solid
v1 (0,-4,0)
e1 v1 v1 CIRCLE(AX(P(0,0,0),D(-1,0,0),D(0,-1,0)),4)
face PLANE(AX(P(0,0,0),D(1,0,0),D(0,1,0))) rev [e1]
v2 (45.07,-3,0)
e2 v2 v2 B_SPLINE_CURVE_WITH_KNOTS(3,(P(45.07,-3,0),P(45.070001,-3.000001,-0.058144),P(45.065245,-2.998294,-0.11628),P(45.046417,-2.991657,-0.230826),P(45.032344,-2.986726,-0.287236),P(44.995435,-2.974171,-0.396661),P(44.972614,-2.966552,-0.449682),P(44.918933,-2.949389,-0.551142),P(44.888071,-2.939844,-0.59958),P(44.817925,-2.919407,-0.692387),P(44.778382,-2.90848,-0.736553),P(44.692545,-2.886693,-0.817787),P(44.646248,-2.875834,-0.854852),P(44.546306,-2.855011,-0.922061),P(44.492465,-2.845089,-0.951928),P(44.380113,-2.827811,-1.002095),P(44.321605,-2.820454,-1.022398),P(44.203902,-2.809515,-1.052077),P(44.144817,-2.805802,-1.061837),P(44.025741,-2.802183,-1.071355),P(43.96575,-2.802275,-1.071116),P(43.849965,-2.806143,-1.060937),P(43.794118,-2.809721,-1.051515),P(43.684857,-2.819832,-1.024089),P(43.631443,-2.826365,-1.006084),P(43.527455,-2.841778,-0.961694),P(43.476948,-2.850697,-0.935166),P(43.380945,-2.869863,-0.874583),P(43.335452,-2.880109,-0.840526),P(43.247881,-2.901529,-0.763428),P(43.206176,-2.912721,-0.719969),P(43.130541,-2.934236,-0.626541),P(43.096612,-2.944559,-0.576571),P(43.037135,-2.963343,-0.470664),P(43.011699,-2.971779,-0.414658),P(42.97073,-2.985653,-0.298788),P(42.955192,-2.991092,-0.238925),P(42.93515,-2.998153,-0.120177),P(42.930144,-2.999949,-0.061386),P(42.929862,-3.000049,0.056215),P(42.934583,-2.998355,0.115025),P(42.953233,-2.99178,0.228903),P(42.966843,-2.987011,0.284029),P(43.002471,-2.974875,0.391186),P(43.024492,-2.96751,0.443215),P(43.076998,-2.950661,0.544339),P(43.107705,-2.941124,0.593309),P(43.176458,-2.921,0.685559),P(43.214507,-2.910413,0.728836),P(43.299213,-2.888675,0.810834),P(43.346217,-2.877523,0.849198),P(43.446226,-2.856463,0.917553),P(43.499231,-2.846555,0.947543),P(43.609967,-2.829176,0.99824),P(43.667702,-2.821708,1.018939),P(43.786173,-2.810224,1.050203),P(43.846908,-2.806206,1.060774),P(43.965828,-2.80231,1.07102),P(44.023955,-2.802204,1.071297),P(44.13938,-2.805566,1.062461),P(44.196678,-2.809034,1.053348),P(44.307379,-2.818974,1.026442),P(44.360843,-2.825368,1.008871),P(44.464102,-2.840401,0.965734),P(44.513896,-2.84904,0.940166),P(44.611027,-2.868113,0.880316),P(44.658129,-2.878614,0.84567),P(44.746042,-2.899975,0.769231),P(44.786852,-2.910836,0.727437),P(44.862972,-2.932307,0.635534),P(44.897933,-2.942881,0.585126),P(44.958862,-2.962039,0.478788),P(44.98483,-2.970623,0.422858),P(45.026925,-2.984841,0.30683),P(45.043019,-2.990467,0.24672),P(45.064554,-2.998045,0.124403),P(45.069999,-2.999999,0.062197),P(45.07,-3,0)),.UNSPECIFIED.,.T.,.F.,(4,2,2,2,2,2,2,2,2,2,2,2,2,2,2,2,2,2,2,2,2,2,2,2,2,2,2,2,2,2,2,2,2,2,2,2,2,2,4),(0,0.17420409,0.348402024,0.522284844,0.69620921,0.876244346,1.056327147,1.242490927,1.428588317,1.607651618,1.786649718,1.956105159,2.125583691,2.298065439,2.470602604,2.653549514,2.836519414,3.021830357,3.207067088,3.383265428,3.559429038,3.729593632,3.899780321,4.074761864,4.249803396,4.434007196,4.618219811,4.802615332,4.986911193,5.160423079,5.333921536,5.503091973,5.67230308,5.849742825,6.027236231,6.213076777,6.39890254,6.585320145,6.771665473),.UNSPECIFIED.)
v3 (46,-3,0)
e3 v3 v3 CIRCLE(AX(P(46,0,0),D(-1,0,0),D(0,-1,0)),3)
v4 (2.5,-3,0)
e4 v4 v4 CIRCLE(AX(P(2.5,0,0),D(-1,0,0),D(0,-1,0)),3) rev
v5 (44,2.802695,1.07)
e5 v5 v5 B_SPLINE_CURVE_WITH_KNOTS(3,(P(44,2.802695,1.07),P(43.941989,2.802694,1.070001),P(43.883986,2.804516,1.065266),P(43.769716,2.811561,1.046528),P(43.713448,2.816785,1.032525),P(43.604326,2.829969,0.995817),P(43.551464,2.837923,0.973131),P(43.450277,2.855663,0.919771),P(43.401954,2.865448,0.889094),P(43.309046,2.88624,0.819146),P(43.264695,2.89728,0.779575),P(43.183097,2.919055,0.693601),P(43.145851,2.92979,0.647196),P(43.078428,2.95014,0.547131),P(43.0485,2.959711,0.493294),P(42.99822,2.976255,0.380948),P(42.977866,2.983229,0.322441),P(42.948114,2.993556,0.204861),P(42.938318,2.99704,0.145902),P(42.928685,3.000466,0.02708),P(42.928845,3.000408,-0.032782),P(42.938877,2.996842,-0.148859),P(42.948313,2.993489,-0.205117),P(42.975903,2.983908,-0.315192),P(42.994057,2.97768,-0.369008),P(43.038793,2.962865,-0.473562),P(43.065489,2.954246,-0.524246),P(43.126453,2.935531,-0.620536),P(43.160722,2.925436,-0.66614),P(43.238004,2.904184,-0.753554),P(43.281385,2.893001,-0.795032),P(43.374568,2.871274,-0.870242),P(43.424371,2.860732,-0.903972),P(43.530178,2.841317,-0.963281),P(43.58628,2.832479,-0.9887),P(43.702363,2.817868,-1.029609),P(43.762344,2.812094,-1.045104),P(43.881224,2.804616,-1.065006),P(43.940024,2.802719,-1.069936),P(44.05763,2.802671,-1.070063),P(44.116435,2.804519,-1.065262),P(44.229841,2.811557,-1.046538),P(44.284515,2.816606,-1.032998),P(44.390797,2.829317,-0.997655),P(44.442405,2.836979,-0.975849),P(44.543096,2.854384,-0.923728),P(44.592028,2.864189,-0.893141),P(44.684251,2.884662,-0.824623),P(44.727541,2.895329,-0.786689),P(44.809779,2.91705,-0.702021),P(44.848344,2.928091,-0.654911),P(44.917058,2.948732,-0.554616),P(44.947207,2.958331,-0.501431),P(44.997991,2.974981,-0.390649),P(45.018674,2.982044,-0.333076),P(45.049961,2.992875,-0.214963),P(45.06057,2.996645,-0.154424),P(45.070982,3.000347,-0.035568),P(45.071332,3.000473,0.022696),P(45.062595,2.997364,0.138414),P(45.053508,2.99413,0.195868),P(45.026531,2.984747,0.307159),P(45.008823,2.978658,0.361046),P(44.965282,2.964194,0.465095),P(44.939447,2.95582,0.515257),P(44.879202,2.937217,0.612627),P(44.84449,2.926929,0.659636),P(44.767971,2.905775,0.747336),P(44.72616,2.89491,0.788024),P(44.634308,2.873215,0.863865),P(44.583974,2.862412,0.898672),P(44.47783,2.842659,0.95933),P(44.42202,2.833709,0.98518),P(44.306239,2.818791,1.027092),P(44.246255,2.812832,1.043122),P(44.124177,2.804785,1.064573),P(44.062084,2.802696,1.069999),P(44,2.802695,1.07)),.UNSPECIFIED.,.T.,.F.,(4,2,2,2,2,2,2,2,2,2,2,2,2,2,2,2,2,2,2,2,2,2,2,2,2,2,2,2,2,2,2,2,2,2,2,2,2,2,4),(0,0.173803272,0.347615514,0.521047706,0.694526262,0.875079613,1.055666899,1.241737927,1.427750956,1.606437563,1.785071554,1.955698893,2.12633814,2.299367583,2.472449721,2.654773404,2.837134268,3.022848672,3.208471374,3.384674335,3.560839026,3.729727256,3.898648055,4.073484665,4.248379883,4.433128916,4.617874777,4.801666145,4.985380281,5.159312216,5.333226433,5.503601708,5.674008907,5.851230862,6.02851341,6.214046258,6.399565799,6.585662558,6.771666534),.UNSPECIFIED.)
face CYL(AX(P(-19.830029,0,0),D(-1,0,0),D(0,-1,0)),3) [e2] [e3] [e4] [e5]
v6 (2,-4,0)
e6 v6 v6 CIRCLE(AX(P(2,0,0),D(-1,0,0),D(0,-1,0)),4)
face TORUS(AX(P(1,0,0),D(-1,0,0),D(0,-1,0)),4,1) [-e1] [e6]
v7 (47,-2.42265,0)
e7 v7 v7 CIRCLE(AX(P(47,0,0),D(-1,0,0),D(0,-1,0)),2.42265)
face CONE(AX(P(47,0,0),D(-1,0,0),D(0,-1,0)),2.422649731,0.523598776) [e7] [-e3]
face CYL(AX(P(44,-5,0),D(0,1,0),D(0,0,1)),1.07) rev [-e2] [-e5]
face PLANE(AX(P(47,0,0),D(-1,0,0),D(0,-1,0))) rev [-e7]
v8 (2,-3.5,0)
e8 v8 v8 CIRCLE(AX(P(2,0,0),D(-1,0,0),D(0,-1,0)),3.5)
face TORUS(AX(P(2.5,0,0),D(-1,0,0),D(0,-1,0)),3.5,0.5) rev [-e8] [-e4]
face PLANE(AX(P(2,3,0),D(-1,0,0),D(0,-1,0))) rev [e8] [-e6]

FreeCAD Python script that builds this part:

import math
import FreeCAD as App
import Part
import Sketcher
Q = App.Units.Quantity


def edges_at(feature, points):
    """Names of the edges that pass closest to the given points."""
    edges = feature.Shape.Edges
    near = lambda p: min(range(len(edges)), key=lambda i: edges[i].distToShape(Part.Vertex(*p))[0])
    return sorted({f"Edge{near(p) + 1}" for p in points})

doc = App.newDocument("Part")
body = doc.addObject("PartDesign::Body", "Body")

# Sketch on XY plane
sketch1 = body.newObject("Sketcher::SketchObject", "Sketch")
sketch1.AttachmentSupport = (doc.getObject("XY_Plane"), [""])
sketch1.MapMode = "FlatFace"
sketch1.addGeometry(Part.LineSegment(App.Vector(0, 0, 0), App.Vector(47, 0, 0)), False)
sketch1.addGeometry(Part.LineSegment(App.Vector(47, 0, 0), App.Vector(47, 2.4, 0)), False)
sketch1.addGeometry(Part.LineSegment(App.Vector(47, 2.4, 0), App.Vector(46, 3, 0)), False)
sketch1.addGeometry(Part.LineSegment(App.Vector(46, 3, 0), App.Vector(2, 3, 0)), False)
sketch1.addGeometry(Part.LineSegment(App.Vector(2, 3, 0), App.Vector(2, 4, 0)), False)
sketch1.addGeometry(Part.ArcOfCircle(Part.Circle(App.Vector(1, 4, 0), App.Vector(0, 0, 1), 1), math.radians(0), math.radians(180)), False)
sketch1.addGeometry(Part.LineSegment(App.Vector(0, 4, 0), App.Vector(0, 0, 0)), False)
sketch1.addConstraint(Sketcher.Constraint("Coincident", 0, 2, 1, 1))
sketch1.addConstraint(Sketcher.Constraint("Coincident", 1, 2, 2, 1))
sketch1.addConstraint(Sketcher.Constraint("Coincident", 2, 2, 3, 1))
sketch1.addConstraint(Sketcher.Constraint("Coincident", 3, 2, 4, 1))
sketch1.addConstraint(Sketcher.Constraint("Tangent", 4, 2, 5, 1))
sketch1.addConstraint(Sketcher.Constraint("Tangent", 5, 2, 6, 1))
sketch1.addConstraint(Sketcher.Constraint("Coincident", 6, 2, 0, 1))
sketch1.addConstraint(Sketcher.Constraint("Horizontal", 0))
sketch1.addConstraint(Sketcher.Constraint("Vertical", 1))
sketch1.addConstraint(Sketcher.Constraint("Horizontal", 3))
sketch1.addConstraint(Sketcher.Constraint("Vertical", 4))
sketch1.addConstraint(Sketcher.Constraint("Vertical", 6))
sketch1.addConstraint(Sketcher.Constraint("Coincident", 6, 2, -1, 1))
sketch1.addConstraint(Sketcher.Constraint("Radius", 5, 1.0))
sketch1.addConstraint(Sketcher.Constraint("DistanceX", 0, 1, 0, 2, 47.0))
sketch1.addConstraint(Sketcher.Constraint("DistanceX", 3, 2, 3, 1, 44.0))
sketch1.addConstraint(Sketcher.Constraint("DistanceY", 4, 1, 4, 2, 1.0))
sketch1.addConstraint(Sketcher.Constraint("DistanceY", 6, 2, 6, 1, 4.0))
sketch1.addConstraint(Sketcher.Constraint("Angle", 2, Q("150 deg")))
revolution = body.newObject("PartDesign::Revolution", "Revolution")
revolution.Profile = sketch1
revolution.ReferenceAxis = (sketch1, ["H_Axis"])
revolution.Angle = 360
doc.recompute()

fillet = body.newObject("PartDesign::Fillet", "Fillet")
fillet.Base = (revolution, edges_at(revolution, [(2, -3, 0)]))
fillet.Radius = 0.5

# Sketch on XZ plane
sketch2 = body.newObject("Sketcher::SketchObject", "Sketch001")
sketch2.AttachmentSupport = (doc.getObject("XZ_Plane"), [""])
sketch2.MapMode = "FlatFace"
sketch2.addGeometry(Part.Circle(App.Vector(44, 0, 0), App.Vector(0, 0, 1), 1.1), False)
sketch2.addConstraint(Sketcher.Constraint("PointOnObject", 0, 3, -1))
sketch2.addConstraint(Sketcher.Constraint("Diameter", 0, 2.14))
sketch2.addConstraint(Sketcher.Constraint("DistanceX", -1, 1, 0, 3, 44.0))
pocket1 = body.newObject("PartDesign::Pocket", "Pocket")
pocket1.Profile = sketch2
pocket1.Type = "ThroughAll"
pocket1.Midplane = True

doc.recompute()
